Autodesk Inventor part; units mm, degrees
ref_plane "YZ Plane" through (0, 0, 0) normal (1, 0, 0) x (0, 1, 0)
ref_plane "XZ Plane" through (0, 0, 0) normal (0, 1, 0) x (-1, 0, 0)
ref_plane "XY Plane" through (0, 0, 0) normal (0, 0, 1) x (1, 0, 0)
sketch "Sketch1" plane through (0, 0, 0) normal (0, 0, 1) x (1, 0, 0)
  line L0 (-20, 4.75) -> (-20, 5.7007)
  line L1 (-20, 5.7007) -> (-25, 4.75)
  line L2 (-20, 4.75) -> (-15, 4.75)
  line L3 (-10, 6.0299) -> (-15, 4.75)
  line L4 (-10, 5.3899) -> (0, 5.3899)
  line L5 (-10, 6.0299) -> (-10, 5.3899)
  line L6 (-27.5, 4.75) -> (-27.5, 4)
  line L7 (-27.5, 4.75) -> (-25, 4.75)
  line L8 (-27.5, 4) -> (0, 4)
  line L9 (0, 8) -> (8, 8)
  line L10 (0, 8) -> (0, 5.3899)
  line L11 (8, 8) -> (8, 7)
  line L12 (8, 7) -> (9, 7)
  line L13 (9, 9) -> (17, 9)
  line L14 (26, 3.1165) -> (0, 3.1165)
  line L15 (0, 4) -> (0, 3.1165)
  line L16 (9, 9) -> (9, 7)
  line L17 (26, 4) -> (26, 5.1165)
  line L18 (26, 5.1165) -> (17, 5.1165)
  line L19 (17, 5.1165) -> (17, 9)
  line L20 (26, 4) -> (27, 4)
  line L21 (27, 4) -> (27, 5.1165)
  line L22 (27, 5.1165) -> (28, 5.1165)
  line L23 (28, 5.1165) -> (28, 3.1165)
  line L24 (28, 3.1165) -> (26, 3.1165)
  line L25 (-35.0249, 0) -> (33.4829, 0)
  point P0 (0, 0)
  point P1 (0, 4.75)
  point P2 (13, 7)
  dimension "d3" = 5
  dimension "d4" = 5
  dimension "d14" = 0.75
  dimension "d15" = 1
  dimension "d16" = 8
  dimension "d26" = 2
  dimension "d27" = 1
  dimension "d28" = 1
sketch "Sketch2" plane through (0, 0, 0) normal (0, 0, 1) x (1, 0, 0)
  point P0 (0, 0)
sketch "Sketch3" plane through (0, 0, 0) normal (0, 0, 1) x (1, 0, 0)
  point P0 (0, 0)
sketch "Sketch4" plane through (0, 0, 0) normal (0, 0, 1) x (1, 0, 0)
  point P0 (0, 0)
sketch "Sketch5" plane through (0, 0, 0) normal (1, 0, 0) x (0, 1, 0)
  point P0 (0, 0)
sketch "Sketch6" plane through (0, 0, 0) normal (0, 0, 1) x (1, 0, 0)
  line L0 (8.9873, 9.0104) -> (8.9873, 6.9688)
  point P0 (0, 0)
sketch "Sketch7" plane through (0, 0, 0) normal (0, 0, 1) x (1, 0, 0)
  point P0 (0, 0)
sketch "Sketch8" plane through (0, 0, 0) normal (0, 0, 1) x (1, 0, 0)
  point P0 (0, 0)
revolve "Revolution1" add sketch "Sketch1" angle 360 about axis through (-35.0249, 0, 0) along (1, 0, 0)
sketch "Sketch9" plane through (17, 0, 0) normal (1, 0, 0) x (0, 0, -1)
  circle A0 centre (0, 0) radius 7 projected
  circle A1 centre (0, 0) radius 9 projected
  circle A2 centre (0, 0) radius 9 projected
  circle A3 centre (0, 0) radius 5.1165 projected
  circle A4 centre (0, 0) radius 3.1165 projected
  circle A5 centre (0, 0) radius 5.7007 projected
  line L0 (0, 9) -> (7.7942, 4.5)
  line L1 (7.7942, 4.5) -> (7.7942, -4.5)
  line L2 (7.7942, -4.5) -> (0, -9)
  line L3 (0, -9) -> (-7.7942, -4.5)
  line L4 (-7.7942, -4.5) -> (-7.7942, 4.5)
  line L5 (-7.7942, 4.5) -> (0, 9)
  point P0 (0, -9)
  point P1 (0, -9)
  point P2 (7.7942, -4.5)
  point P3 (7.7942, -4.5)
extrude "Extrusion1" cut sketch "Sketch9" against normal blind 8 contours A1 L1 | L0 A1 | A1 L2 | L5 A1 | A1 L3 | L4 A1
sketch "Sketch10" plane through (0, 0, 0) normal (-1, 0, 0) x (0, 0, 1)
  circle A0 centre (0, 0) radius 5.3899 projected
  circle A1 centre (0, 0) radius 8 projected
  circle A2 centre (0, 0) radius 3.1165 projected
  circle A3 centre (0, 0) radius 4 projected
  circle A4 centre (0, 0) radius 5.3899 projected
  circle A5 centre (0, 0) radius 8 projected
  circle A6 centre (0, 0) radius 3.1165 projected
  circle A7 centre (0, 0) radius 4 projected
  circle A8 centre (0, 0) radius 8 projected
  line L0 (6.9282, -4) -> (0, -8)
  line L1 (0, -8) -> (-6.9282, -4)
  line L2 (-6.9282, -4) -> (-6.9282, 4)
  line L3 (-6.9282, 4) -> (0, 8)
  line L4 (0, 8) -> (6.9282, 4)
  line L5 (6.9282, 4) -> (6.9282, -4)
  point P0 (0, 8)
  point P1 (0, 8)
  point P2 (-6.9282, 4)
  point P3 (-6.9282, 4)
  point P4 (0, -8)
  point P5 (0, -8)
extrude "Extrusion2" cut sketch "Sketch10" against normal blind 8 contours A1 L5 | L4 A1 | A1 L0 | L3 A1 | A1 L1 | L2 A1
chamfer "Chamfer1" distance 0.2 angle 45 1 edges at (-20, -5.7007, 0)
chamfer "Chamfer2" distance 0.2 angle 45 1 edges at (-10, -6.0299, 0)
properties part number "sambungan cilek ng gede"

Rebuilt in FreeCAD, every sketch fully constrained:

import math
import FreeCAD as App
import Part
import Sketcher

V = App.Vector
Q = App.Units.Quantity


def edges_at(feature, points):
    """Names of the edges that pass closest to the given points."""
    edges = feature.Shape.Edges
    near = lambda p: min(range(len(edges)), key=lambda i: edges[i].distToShape(Part.Vertex(*p))[0])
    return sorted({f"Edge{near(p) + 1}" for p in points})

doc = App.newDocument("Part")
body = doc.addObject("PartDesign::Body", "Body")

# Sketch on XY plane
sketch1 = body.newObject("Sketcher::SketchObject", "Sketch")
sketch1.AttachmentSupport = (doc.getObject("XY_Plane"), [""])
sketch1.MapMode = "FlatFace"
sketch1.addGeometry([
    Part.LineSegment(V(-15, 4.75, 0), V(-20, 4.75, 0)),  # 0
    Part.LineSegment(V(-20, 4.75, 0), V(-20, 5.7007, 0)),  # 1
    Part.LineSegment(V(-20, 5.7007, 0), V(-25, 4.75, 0)),  # 2
    Part.LineSegment(V(-25, 4.75, 0), V(-27.5, 4.75, 0)),  # 3
    Part.LineSegment(V(-27.5, 4.75, 0), V(-27.5, 4, 0)),  # 4
    Part.LineSegment(V(-27.5, 4, 0), V(0, 4, 0)),  # 5
    Part.LineSegment(V(0, 4, 0), V(0, 3.1165, 0)),  # 6
    Part.LineSegment(V(0, 3.1165, 0), V(28, 3.1165, 0)),  # 7
    Part.LineSegment(V(28, 3.1165, 0), V(28, 5.1165, 0)),  # 8
    Part.LineSegment(V(28, 5.1165, 0), V(27, 5.1165, 0)),  # 9
    Part.LineSegment(V(27, 5.1165, 0), V(27, 4, 0)),  # 10
    Part.LineSegment(V(27, 4, 0), V(26, 4, 0)),  # 11
    Part.LineSegment(V(26, 4, 0), V(26, 5.1165, 0)),  # 12
    Part.LineSegment(V(26, 5.1165, 0), V(17, 5.1165, 0)),  # 13
    Part.LineSegment(V(17, 5.1165, 0), V(17, 9, 0)),  # 14
    Part.LineSegment(V(17, 9, 0), V(9, 9, 0)),  # 15
    Part.LineSegment(V(9, 9, 0), V(9, 7, 0)),  # 16
    Part.LineSegment(V(9, 7, 0), V(8, 7, 0)),  # 17
    Part.LineSegment(V(8, 7, 0), V(8, 8, 0)),  # 18
    Part.LineSegment(V(8, 8, 0), V(0, 8, 0)),  # 19
    Part.LineSegment(V(0, 8, 0), V(0, 5.3899, 0)),  # 20
    Part.LineSegment(V(0, 5.3899, 0), V(-10, 5.3899, 0)),  # 21
    Part.LineSegment(V(-10, 5.3899, 0), V(-10, 6.0299, 0)),  # 22
    Part.LineSegment(V(-10, 6.0299, 0), V(-15, 4.75, 0)),  # 23
], False)
sketch1.addConstraint([
    Sketcher.Constraint("Coincident", 0, 2, 1, 1),
    Sketcher.Constraint("Coincident", 1, 2, 2, 1),
    Sketcher.Constraint("Coincident", 2, 2, 3, 1),
    Sketcher.Constraint("Coincident", 3, 2, 4, 1),
    Sketcher.Constraint("Coincident", 4, 2, 5, 1),
    Sketcher.Constraint("Coincident", 5, 2, 6, 1),
    Sketcher.Constraint("Coincident", 6, 2, 7, 1),
    Sketcher.Constraint("Coincident", 7, 2, 8, 1),
    Sketcher.Constraint("Coincident", 8, 2, 9, 1),
    Sketcher.Constraint("Coincident", 9, 2, 10, 1),
    Sketcher.Constraint("Coincident", 10, 2, 11, 1),
    Sketcher.Constraint("Coincident", 11, 2, 12, 1),
    Sketcher.Constraint("Coincident", 12, 2, 13, 1),
    Sketcher.Constraint("Coincident", 13, 2, 14, 1),
    Sketcher.Constraint("Coincident", 14, 2, 15, 1),
    Sketcher.Constraint("Coincident", 15, 2, 16, 1),
    Sketcher.Constraint("Coincident", 16, 2, 17, 1),
    Sketcher.Constraint("Coincident", 17, 2, 18, 1),
    Sketcher.Constraint("Coincident", 18, 2, 19, 1),
    Sketcher.Constraint("Coincident", 19, 2, 20, 1),
    Sketcher.Constraint("Coincident", 20, 2, 21, 1),
    Sketcher.Constraint("Coincident", 21, 2, 22, 1),
    Sketcher.Constraint("Coincident", 22, 2, 23, 1),
    Sketcher.Constraint("Coincident", 23, 2, 0, 1),
    Sketcher.Constraint("Horizontal", 0),
    Sketcher.Constraint("Vertical", 1),
    Sketcher.Constraint("Horizontal", 3),
    Sketcher.Constraint("Vertical", 4),
    Sketcher.Constraint("Horizontal", 5),
    Sketcher.Constraint("Vertical", 6),
    Sketcher.Constraint("Horizontal", 7),
    Sketcher.Constraint("Vertical", 8),
    Sketcher.Constraint("Horizontal", 9),
    Sketcher.Constraint("Vertical", 10),
    Sketcher.Constraint("Horizontal", 11),
    Sketcher.Constraint("Vertical", 12),
    Sketcher.Constraint("Horizontal", 13),
    Sketcher.Constraint("Vertical", 14),
    Sketcher.Constraint("Horizontal", 15),
    Sketcher.Constraint("Vertical", 16),
    Sketcher.Constraint("Horizontal", 17),
    Sketcher.Constraint("Vertical", 18),
    Sketcher.Constraint("Horizontal", 19),
    Sketcher.Constraint("Vertical", 20),
    Sketcher.Constraint("Horizontal", 21),
    Sketcher.Constraint("Vertical", 22),
    Sketcher.Constraint("PointOnObject", 5, 2, -2),
    Sketcher.Constraint("PointOnObject", 19, 2, -2),
    Sketcher.Constraint("Horizontal", 0, 2, 2, 2),
    Sketcher.Constraint("Horizontal", 5, 2, 10, 2),
    Sketcher.Constraint("Horizontal", 9, 2, 12, 2),
    Sketcher.Constraint("Equal", 9, 11),
    Sketcher.Constraint("Equal", 11, 17),
    Sketcher.Constraint("Equal", 15, 19),
    Sketcher.Constraint("Equal", 8, 16),
    Sketcher.Constraint("Equal", 17, 18),
    Sketcher.Constraint("DistanceX", 0, 2, 0, 1, Q("5 mm")),
    Sketcher.Constraint("DistanceX", 9, 2, 9, 1, Q("1 mm")),
    Sketcher.Constraint("DistanceX", 15, 2, 15, 1, Q("8 mm")),
    Sketcher.Constraint("DistanceY", 8, 1, 8, 2, Q("2 mm")),
    Sketcher.Constraint("DistanceY", -1, 1, 18, 2, Q("8 mm")),
    Sketcher.Constraint("DistanceX", 2, 2, 0, 2, Q("5 mm")),
    Sketcher.Constraint("DistanceY", 11, 2, 14, 2, Q("5 mm")),
    Sketcher.Constraint("DistanceX", 23, 2, 21, 2, Q("5 mm")),
    Sketcher.Constraint("DistanceY", 4, 2, 4, 1, Q("0.75 mm")),
    Sketcher.Constraint("DistanceX", 7, 1, 7, 2, Q("28 mm")),
    Sketcher.Constraint("DistanceX", 21, 2, 21, 1, Q("10 mm")),
    Sketcher.Constraint("DistanceX", 3, 2, 3, 1, Q("2.5 mm")),
    Sketcher.Constraint("DistanceY", 20, 2, 20, 1, Q("2.61 mm")),
    Sketcher.Constraint("DistanceY", 22, 1, 22, 2, Q("0.64 mm")),
    Sketcher.Constraint("DistanceY", 1, 1, 1, 2, Q("0.9507 mm")),
    Sketcher.Constraint("DistanceY", 6, 2, 6, 1, Q("0.8835 mm")),
])
revolution = body.newObject("PartDesign::Revolution", "Revolution")
revolution.Profile = sketch1
revolution.ReferenceAxis = (sketch1, ["H_Axis"])
revolution.Angle = 360

# Sketch on YZ plane
sketch2 = body.newObject("Sketcher::SketchObject", "Sketch001")
sketch2.AttachmentSupport = (doc.getObject("YZ_Plane"), [""])
sketch2.MapMode = "FlatFace"
sketch2.AttachmentOffset = App.Placement(V(0, 0, 17), App.Rotation())
sketch2.addGeometry([
    Part.ArcOfCircle(Part.Circle(V(0, 0, 0), V(0, 0, 1), 9), math.radians(-120.000091), math.radians(-59.999909)),  # 0
    Part.LineSegment(V(-4.5, -7.7942, 0), V(4.5, -7.7942, 0)),  # 1
    Part.LineSegment(V(9, 0, 0), V(4.5, -7.7942, 0)),  # 2
    Part.ArcOfCircle(Part.Circle(V(0, 0, 0), V(0, 0, 1), 9), math.radians(-59.999909), math.radians(0)),  # 3
    Part.ArcOfCircle(Part.Circle(V(0, 0, 0), V(0, 0, 1), 9), math.radians(180), math.radians(239.999909)),  # 4
    Part.LineSegment(V(-9, 0, 0), V(-4.5, -7.7942, 0)),  # 5
    Part.LineSegment(V(4.5, 7.7942, 0), V(9, 0, 0)),  # 6
    Part.ArcOfCircle(Part.Circle(V(0, 0, 0), V(0, 0, 1), 9), math.radians(0), math.radians(59.999909)),  # 7
    Part.ArcOfCircle(Part.Circle(V(0, 0, 0), V(0, 0, 1), 9), math.radians(120.000091), math.radians(180)),  # 8
    Part.LineSegment(V(-9, 0, 0), V(-4.5, 7.7942, 0)),  # 9
    Part.LineSegment(V(-4.5, 7.7942, 0), V(4.5, 7.7942, 0)),  # 10
    Part.ArcOfCircle(Part.Circle(V(0, 0, 0), V(0, 0, 1), 9), math.radians(59.999909), math.radians(120.000091)),  # 11
], False)
sketch2.addConstraint([
    Sketcher.Constraint("Coincident", 0, 1, 1, 1),
    Sketcher.Constraint("Coincident", 1, 2, 0, 2),
    Sketcher.Constraint("Coincident", 2, 1, 3, 2),
    Sketcher.Constraint("Coincident", 3, 1, 2, 2),
    Sketcher.Constraint("Coincident", 4, 1, 5, 1),
    Sketcher.Constraint("Coincident", 5, 2, 4, 2),
    Sketcher.Constraint("Coincident", 6, 1, 7, 2),
    Sketcher.Constraint("Coincident", 7, 1, 6, 2),
    Sketcher.Constraint("Coincident", 8, 1, 9, 2),
    Sketcher.Constraint("Coincident", 9, 1, 8, 2),
    Sketcher.Constraint("Coincident", 10, 1, 11, 2),
    Sketcher.Constraint("Coincident", 11, 1, 10, 2),
    Sketcher.Constraint("Horizontal", 1),
    Sketcher.Constraint("Horizontal", 10),
    Sketcher.Constraint("Coincident", 0, 3, -1, 1),
    Sketcher.Constraint("Coincident", 3, 3, -1, 1),
    Sketcher.Constraint("Coincident", 4, 3, -1, 1),
    Sketcher.Constraint("Coincident", 7, 3, -1, 1),
    Sketcher.Constraint("Coincident", 8, 3, -1, 1),
    Sketcher.Constraint("Coincident", 11, 3, -1, 1),
    Sketcher.Constraint("Coincident", 3, 1, 1, 2),
    Sketcher.Constraint("Coincident", 5, 2, 0, 1),
    Sketcher.Constraint("Coincident", 7, 1, 2, 1),
    Sketcher.Constraint("Coincident", 9, 1, 4, 1),
    Sketcher.Constraint("Coincident", 10, 1, 8, 1),
    Sketcher.Constraint("PointOnObject", 2, 1, -1),
    Sketcher.Constraint("PointOnObject", 4, 1, -1),
    Sketcher.Constraint("Parallel", 5, 6),
    Sketcher.Constraint("Parallel", 2, 9),
    Sketcher.Constraint("Radius", 0, Q("9 mm")),
    Sketcher.Constraint("DistanceX", 1, 1, 1, 2, Q("9 mm")),
])
pocket1 = body.newObject("PartDesign::Pocket", "Pocket")
pocket1.Profile = sketch2
pocket1.Length = 8

# Sketch on YZ plane
sketch3 = body.newObject("Sketcher::SketchObject", "Sketch002")
sketch3.AttachmentSupport = (doc.getObject("YZ_Plane"), [""])
sketch3.MapMode = "FlatFace"
sketch3.addGeometry([
    Part.ArcOfCircle(Part.Circle(V(0, 0, 0), V(0, 0, 1), 8), math.radians(59.999988), math.radians(120.000012)),  # 0
    Part.LineSegment(V(-4, 6.9282, 0), V(4, 6.9282, 0)),  # 1
    Part.LineSegment(V(8, 0, 0), V(4, 6.9282, 0)),  # 2
    Part.ArcOfCircle(Part.Circle(V(0, 0, 0), V(0, 0, 1), 8), math.radians(0), math.radians(59.999988)),  # 3
    Part.ArcOfCircle(Part.Circle(V(0, 0, 0), V(0, 0, 1), 8), math.radians(120.000012), math.radians(180)),  # 4
    Part.LineSegment(V(-8, 0, 0), V(-4, 6.9282, 0)),  # 5
    Part.LineSegment(V(4, -6.9282, 0), V(8, 0, 0)),  # 6
    Part.ArcOfCircle(Part.Circle(V(0, 0, 0), V(0, 0, 1), 8), math.radians(-59.999988), math.radians(0)),  # 7
    Part.ArcOfCircle(Part.Circle(V(0, 0, 0), V(0, 0, 1), 8), math.radians(180), math.radians(239.999988)),  # 8
    Part.LineSegment(V(-8, 0, 0), V(-4, -6.9282, 0)),  # 9
    Part.LineSegment(V(-4, -6.9282, 0), V(4, -6.9282, 0)),  # 10
    Part.ArcOfCircle(Part.Circle(V(0, 0, 0), V(0, 0, 1), 8), math.radians(-120.000012), math.radians(-59.999988)),  # 11
], False)
sketch3.addConstraint([
    Sketcher.Constraint("Coincident", 0, 1, 1, 2),
    Sketcher.Constraint("Coincident", 1, 1, 0, 2),
    Sketcher.Constraint("Coincident", 2, 1, 3, 1),
    Sketcher.Constraint("Coincident", 3, 2, 2, 2),
    Sketcher.Constraint("Coincident", 4, 1, 5, 2),
    Sketcher.Constraint("Coincident", 5, 1, 4, 2),
    Sketcher.Constraint("Coincident", 6, 1, 7, 1),
    Sketcher.Constraint("Coincident", 7, 2, 6, 2),
    Sketcher.Constraint("Coincident", 8, 1, 9, 1),
    Sketcher.Constraint("Coincident", 9, 2, 8, 2),
    Sketcher.Constraint("Coincident", 10, 1, 11, 1),
    Sketcher.Constraint("Coincident", 11, 2, 10, 2),
    Sketcher.Constraint("Horizontal", 1),
    Sketcher.Constraint("Horizontal", 10),
    Sketcher.Constraint("Coincident", 0, 3, -1, 1),
    Sketcher.Constraint("Coincident", 3, 3, -1, 1),
    Sketcher.Constraint("Coincident", 4, 3, -1, 1),
    Sketcher.Constraint("Coincident", 7, 3, -1, 1),
    Sketcher.Constraint("Coincident", 8, 3, -1, 1),
    Sketcher.Constraint("Coincident", 11, 3, -1, 1),
    Sketcher.Constraint("Coincident", 3, 2, 0, 1),
    Sketcher.Constraint("Coincident", 4, 1, 1, 1),
    Sketcher.Constraint("Coincident", 7, 2, 2, 1),
    Sketcher.Constraint("Coincident", 8, 1, 5, 1),
    Sketcher.Constraint("Coincident", 10, 1, 9, 2),
    Sketcher.Constraint("PointOnObject", 2, 1, -1),
    Sketcher.Constraint("PointOnObject", 5, 1, -1),
    Sketcher.Constraint("Parallel", 5, 6),
    Sketcher.Constraint("Parallel", 2, 9),
    Sketcher.Constraint("Radius", 0, Q("8 mm")),
    Sketcher.Constraint("DistanceX", 1, 1, 1, 2, Q("8 mm")),
])
pocket2 = body.newObject("PartDesign::Pocket", "Pocket001")
pocket2.Profile = sketch3
pocket2.Length = 8
pocket2.Reversed = True
doc.recompute()

chamfer = body.newObject("PartDesign::Chamfer", "Chamfer")
chamfer.Base = (pocket2, edges_at(pocket2, [(-20, -5.701, 0)]))
chamfer.Size = 0.2
doc.recompute()

chamfer2 = body.newObject("PartDesign::Chamfer", "Chamfer001")
chamfer2.Base = (chamfer, edges_at(chamfer, [(-10, -6.03, 0)]))
chamfer2.Size = 0.2

doc.recompute()
